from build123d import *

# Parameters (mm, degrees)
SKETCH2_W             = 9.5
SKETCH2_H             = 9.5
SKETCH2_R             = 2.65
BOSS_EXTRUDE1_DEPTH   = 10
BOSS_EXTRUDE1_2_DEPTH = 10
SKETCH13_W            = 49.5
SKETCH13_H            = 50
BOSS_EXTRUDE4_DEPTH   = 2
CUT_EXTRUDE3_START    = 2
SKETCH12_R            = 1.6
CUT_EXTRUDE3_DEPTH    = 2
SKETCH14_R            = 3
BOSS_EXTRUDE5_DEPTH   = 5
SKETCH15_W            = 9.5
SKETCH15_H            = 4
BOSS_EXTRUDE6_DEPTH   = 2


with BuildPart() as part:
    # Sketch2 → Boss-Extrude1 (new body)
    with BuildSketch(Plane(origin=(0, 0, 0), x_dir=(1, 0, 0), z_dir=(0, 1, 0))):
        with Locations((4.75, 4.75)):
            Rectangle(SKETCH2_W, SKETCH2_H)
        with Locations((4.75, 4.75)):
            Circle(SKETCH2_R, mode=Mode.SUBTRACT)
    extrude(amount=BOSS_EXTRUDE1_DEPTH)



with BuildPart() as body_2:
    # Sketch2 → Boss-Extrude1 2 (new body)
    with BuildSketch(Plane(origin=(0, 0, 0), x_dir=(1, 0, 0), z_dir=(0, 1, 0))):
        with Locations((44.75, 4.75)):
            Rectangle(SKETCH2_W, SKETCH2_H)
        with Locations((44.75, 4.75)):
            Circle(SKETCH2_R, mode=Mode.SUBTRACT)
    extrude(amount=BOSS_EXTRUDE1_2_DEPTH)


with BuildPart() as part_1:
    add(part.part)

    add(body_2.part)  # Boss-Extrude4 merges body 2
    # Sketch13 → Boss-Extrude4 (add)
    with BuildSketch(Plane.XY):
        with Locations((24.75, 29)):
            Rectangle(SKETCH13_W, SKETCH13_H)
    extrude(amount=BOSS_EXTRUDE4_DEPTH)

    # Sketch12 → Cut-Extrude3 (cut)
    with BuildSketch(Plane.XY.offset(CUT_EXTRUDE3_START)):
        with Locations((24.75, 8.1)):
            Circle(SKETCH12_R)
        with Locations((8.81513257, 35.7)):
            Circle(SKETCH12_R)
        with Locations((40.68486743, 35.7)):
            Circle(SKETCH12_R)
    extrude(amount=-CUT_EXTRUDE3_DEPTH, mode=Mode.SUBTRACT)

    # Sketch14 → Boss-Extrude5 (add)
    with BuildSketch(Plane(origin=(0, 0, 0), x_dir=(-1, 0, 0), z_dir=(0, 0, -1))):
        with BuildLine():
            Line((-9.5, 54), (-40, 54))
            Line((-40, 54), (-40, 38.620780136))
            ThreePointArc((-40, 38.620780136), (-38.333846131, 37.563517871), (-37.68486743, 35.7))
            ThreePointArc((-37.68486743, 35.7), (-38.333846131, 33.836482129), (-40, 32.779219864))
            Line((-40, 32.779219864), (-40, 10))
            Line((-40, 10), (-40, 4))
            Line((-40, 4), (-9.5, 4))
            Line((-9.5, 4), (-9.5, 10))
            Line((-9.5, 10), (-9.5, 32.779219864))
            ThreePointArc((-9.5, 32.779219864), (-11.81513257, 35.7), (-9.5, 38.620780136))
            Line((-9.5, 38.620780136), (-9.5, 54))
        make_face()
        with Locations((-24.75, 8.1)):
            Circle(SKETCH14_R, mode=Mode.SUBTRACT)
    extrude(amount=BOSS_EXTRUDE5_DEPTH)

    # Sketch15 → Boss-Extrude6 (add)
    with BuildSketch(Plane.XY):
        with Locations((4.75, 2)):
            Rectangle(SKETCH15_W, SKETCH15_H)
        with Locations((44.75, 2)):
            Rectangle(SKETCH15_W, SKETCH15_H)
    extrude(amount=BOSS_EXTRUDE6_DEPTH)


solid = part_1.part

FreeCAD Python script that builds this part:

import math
import FreeCAD as App
import Part
import Sketcher

V = App.Vector
Q = App.Units.Quantity


def add_polygon(sketch, points):
    """Adds a closed chain of lines whose ends are joined by coincident constraints."""
    first, n = sketch.GeometryCount, len(points)
    for a, b in zip(points, points[1:] + points[:1]):
        sketch.addGeometry(Part.LineSegment(App.Vector(*a, 0), App.Vector(*b, 0)), False)
    for i in range(n):
        sketch.addConstraint(Sketcher.Constraint("Coincident", first + i, 2, first + (i + 1) % n, 1))

doc = App.newDocument("Part")
body = doc.addObject("PartDesign::Body", "Body")

sketch1 = body.newObject("Sketcher::SketchObject", "Sketch")
sketch1.AttachmentSupport = (doc.getObject("XZ_Plane"), [""])
sketch1.MapMode = "FlatFace"
add_polygon(sketch1, [(0, -9.5), (0, 0), (9.5, 0), (9.5, -9.5)])
sketch1.addGeometry(Part.Circle(V(4.8, -4.8, 0), V(0, 0, 1), 2.6), False)
sketch1.addConstraint([
    Sketcher.Constraint("Vertical", 0),
    Sketcher.Constraint("Horizontal", 1),
    Sketcher.Constraint("Vertical", 2),
    Sketcher.Constraint("Horizontal", 3),
    Sketcher.Constraint("Coincident", 0, 2, -1, 1),
    Sketcher.Constraint("Equal", 3, 0),
    Sketcher.Constraint("Diameter", 4, Q("5.3 mm")),
    Sketcher.Constraint("DistanceX", 1, 1, 1, 2, Q("9.5 mm")),
    Sketcher.Constraint("DistanceX", -1, 1, 4, 3, Q("4.75 mm")),
    Sketcher.Constraint("DistanceY", 4, 3, -1, 1, Q("4.75 mm")),
])
pad1 = body.newObject("PartDesign::Pad", "Pad")
pad1.Profile = sketch1
pad1.Length = 10
pad1.Reversed = True
body2 = doc.addObject("PartDesign::Body", "Body001")

sketch2 = body2.newObject("Sketcher::SketchObject", "Sketch001")
sketch2.AttachmentSupport = (doc.getObject("XZ_Plane001"), [""])
sketch2.MapMode = "FlatFace"
add_polygon(sketch2, [(40, -9.5), (40, 0), (49.5, 0), (49.5, -9.5)])
sketch2.addGeometry(Part.Circle(V(44.8, -4.8, 0), V(0, 0, 1), 2.6), False)
sketch2.addConstraint([
    Sketcher.Constraint("Vertical", 0),
    Sketcher.Constraint("Horizontal", 1),
    Sketcher.Constraint("Vertical", 2),
    Sketcher.Constraint("Horizontal", 3),
    Sketcher.Constraint("PointOnObject", 0, 2, -1),
    Sketcher.Constraint("Equal", 3, 0),
    Sketcher.Constraint("Diameter", 4, Q("5.3 mm")),
    Sketcher.Constraint("DistanceX", 1, 1, 1, 2, Q("9.5 mm")),
    Sketcher.Constraint("DistanceX", -1, 1, 0, 2, Q("40 mm")),
    Sketcher.Constraint("DistanceX", -1, 1, 4, 3, Q("44.75 mm")),
    Sketcher.Constraint("DistanceY", 4, 3, -1, 1, Q("4.75 mm")),
])
pad2 = body2.newObject("PartDesign::Pad", "Pad001")
pad2.Profile = sketch2
pad2.Length = 10
pad2.Reversed = True
body.AllowCompound = True
doc.recompute()

boolean = body.newObject("PartDesign::Boolean", "Boolean")
boolean.Type = "Fuse"
boolean.addObjects([body2])

sketch3 = body.newObject("Sketcher::SketchObject", "Sketch002")
sketch3.AttachmentSupport = (doc.getObject("XY_Plane"), [""])
sketch3.MapMode = "FlatFace"
add_polygon(sketch3, [(0, 54), (0, 4), (50, 4), (50, 54)])
sketch3.addConstraint([
    Sketcher.Constraint("Vertical", 0),
    Sketcher.Constraint("Horizontal", 1),
    Sketcher.Constraint("Vertical", 2),
    Sketcher.Constraint("Horizontal", 3),
    Sketcher.Constraint("PointOnObject", 0, 2, -2),
    Sketcher.Constraint("DistanceY", 0, 2, 0, 1, Q("50 mm")),
    Sketcher.Constraint("DistanceX", 1, 1, 1, 2, Q("49.5 mm")),
    Sketcher.Constraint("DistanceY", -1, 1, 0, 2, Q("4 mm")),
])
pad3 = body.newObject("PartDesign::Pad", "Pad002")
pad3.Profile = sketch3
pad3.Length = 2

sketch4 = body.newObject("Sketcher::SketchObject", "Sketch003")
sketch4.AttachmentSupport = (doc.getObject("XY_Plane"), [""])
sketch4.MapMode = "FlatFace"
sketch4.AttachmentOffset = App.Placement(V(0, 0, 2), App.Rotation())
sketch4.addGeometry([
    Part.Circle(V(24.8, 8.1, 0), V(0, 0, 1), 1.6),
    Part.Circle(V(8.8, 35.7, 0), V(0, 0, 1), 1.6),
    Part.Circle(V(40.7, 35.7, 0), V(0, 0, 1), 1.6),
], False)
sketch4.addConstraint([
    Sketcher.Constraint("Equal", 0, 1),
    Sketcher.Constraint("Equal", 1, 2),
    Sketcher.Constraint("Horizontal", 1, 3, 2, 3),
    Sketcher.Constraint("Diameter", 0, Q("3.2 mm")),
    Sketcher.Constraint("DistanceY", -1, 1, 0, 3, Q("8.1 mm")),
    Sketcher.Constraint("DistanceY", -1, 1, 1, 3, Q("35.7 mm")),
    Sketcher.Constraint("DistanceX", -1, 1, 0, 3, Q("24.75 mm")),
    Sketcher.Constraint("DistanceX", -1, 1, 1, 3, Q("8.815133 mm")),
    Sketcher.Constraint("DistanceX", -1, 1, 2, 3, Q("40.684867 mm")),
])
pocket1 = body.newObject("PartDesign::Pocket", "Pocket")
pocket1.Profile = sketch4
pocket1.Length = 2

sketch5 = body.newObject("Sketcher::SketchObject", "Sketch004")
sketch5.AttachmentSupport = (doc.getObject("XY_Plane"), [""])
sketch5.MapMode = "FlatFace"
sketch5.addGeometry([
    Part.LineSegment(V(9.5, 54, 0), V(40, 54, 0)),
    Part.LineSegment(V(40, 54, 0), V(40, 38.6, 0)),
    Part.ArcOfCircle(Part.Circle(V(40.7, 35.7, 0), V(0, 0, 1), 3), math.radians(103), math.radians(180)),
    Part.ArcOfCircle(Part.Circle(V(40.7, 35.7, 0), V(0, 0, 1), 3), math.radians(180), math.radians(257)),
    Part.LineSegment(V(40, 32.8, 0), V(40, 4, 0)),
    Part.LineSegment(V(40, 4, 0), V(9.5, 4, 0)),
    Part.LineSegment(V(9.5, 4, 0), V(9.5, 32.8, 0)),
    Part.ArcOfCircle(Part.Circle(V(8.8, 35.7, 0), V(0, 0, 1), 3), math.radians(-77), math.radians(77)),
    Part.LineSegment(V(9.5, 38.6, 0), V(9.5, 54, 0)),
    Part.Circle(V(24.8, 8.1, 0), V(0, 0, 1), 3),
], False)
sketch5.addConstraint([
    Sketcher.Constraint("Coincident", 0, 2, 1, 1),
    Sketcher.Constraint("Coincident", 1, 2, 2, 1),
    Sketcher.Constraint("Tangent", 2, 2, 3, 1),
    Sketcher.Constraint("Coincident", 3, 2, 4, 1),
    Sketcher.Constraint("Coincident", 4, 2, 5, 1),
    Sketcher.Constraint("Coincident", 5, 2, 6, 1),
    Sketcher.Constraint("Coincident", 6, 2, 7, 1),
    Sketcher.Constraint("Coincident", 7, 2, 8, 1),
    Sketcher.Constraint("Coincident", 8, 2, 0, 1),
    Sketcher.Constraint("Horizontal", 0),
    Sketcher.Constraint("Vertical", 1),
    Sketcher.Constraint("Vertical", 4),
    Sketcher.Constraint("Horizontal", 5),
    Sketcher.Constraint("Vertical", 6),
    Sketcher.Constraint("Vertical", 8),
    Sketcher.Constraint("Equal", 2, 3),
    Sketcher.Constraint("Equal", 3, 7),
    Sketcher.Constraint("Equal", 7, 9),
    Sketcher.Constraint("Horizontal", 3, 3, 7, 3),
    Sketcher.Constraint("Horizontal", 7, 3, 2, 2),
    Sketcher.Constraint("Horizontal", 3, 2, 6, 2),
    Sketcher.Constraint("Horizontal", 1, 2, 7, 2),
    Sketcher.Constraint("Vertical", 1, 2, 3, 2),
    Sketcher.Constraint("Diameter", 9, Q("6 mm")),
    Sketcher.Constraint("DistanceX", 0, 1, 0, 2, Q("30.5 mm")),
    Sketcher.Constraint("DistanceX", -1, 1, 0, 2, Q("40 mm")),
    Sketcher.Constraint("DistanceY", -1, 1, 0, 2, Q("54 mm")),
    Sketcher.Constraint("DistanceY", -1, 1, 4, 2, Q("4 mm")),
    Sketcher.Constraint("DistanceY", -1, 1, 2, 3, Q("35.7 mm")),
    Sketcher.Constraint("DistanceY", -1, 1, 9, 3, Q("8.1 mm")),
    Sketcher.Constraint("DistanceX", -1, 1, 9, 3, Q("24.75 mm")),
    Sketcher.Constraint("DistanceY", 1, 2, 1, 1, Q("15.37922 mm")),
])
pad4 = body.newObject("PartDesign::Pad", "Pad003")
pad4.Profile = sketch5
pad4.Length = 5
pad4.Reversed = True

sketch6 = body.newObject("Sketcher::SketchObject", "Sketch005")
sketch6.AttachmentSupport = (doc.getObject("XY_Plane"), [""])
sketch6.MapMode = "FlatFace"
add_polygon(sketch6, [(0, 4), (0, 0), (9.5, 0), (9.5, 4)])
add_polygon(sketch6, [(40, 4), (40, 0), (49.5, 0), (49.5, 4)])
sketch6.addConstraint([
    Sketcher.Constraint("Vertical", 0),
    Sketcher.Constraint("Horizontal", 1),
    Sketcher.Constraint("Vertical", 2),
    Sketcher.Constraint("Horizontal", 3),
    Sketcher.Constraint("Vertical", 4),
    Sketcher.Constraint("Horizontal", 5),
    Sketcher.Constraint("Vertical", 6),
    Sketcher.Constraint("Horizontal", 7),
    Sketcher.Constraint("Coincident", 0, 2, -1, 1),
    Sketcher.Constraint("PointOnObject", 4, 2, -1),
    Sketcher.Constraint("Horizontal", 3, 2, 6, 2),
    Sketcher.Constraint("Equal", 3, 5),
    Sketcher.Constraint("DistanceY", 0, 2, 0, 1, Q("4 mm")),
    Sketcher.Constraint("DistanceX", 1, 1, 1, 2, Q("9.5 mm")),
    Sketcher.Constraint("DistanceX", -1, 1, 4, 2, Q("40 mm")),
])
pad5 = body.newObject("PartDesign::Pad", "Pad004")
pad5.Profile = sketch6
pad5.Length = 2

doc.recompute()
